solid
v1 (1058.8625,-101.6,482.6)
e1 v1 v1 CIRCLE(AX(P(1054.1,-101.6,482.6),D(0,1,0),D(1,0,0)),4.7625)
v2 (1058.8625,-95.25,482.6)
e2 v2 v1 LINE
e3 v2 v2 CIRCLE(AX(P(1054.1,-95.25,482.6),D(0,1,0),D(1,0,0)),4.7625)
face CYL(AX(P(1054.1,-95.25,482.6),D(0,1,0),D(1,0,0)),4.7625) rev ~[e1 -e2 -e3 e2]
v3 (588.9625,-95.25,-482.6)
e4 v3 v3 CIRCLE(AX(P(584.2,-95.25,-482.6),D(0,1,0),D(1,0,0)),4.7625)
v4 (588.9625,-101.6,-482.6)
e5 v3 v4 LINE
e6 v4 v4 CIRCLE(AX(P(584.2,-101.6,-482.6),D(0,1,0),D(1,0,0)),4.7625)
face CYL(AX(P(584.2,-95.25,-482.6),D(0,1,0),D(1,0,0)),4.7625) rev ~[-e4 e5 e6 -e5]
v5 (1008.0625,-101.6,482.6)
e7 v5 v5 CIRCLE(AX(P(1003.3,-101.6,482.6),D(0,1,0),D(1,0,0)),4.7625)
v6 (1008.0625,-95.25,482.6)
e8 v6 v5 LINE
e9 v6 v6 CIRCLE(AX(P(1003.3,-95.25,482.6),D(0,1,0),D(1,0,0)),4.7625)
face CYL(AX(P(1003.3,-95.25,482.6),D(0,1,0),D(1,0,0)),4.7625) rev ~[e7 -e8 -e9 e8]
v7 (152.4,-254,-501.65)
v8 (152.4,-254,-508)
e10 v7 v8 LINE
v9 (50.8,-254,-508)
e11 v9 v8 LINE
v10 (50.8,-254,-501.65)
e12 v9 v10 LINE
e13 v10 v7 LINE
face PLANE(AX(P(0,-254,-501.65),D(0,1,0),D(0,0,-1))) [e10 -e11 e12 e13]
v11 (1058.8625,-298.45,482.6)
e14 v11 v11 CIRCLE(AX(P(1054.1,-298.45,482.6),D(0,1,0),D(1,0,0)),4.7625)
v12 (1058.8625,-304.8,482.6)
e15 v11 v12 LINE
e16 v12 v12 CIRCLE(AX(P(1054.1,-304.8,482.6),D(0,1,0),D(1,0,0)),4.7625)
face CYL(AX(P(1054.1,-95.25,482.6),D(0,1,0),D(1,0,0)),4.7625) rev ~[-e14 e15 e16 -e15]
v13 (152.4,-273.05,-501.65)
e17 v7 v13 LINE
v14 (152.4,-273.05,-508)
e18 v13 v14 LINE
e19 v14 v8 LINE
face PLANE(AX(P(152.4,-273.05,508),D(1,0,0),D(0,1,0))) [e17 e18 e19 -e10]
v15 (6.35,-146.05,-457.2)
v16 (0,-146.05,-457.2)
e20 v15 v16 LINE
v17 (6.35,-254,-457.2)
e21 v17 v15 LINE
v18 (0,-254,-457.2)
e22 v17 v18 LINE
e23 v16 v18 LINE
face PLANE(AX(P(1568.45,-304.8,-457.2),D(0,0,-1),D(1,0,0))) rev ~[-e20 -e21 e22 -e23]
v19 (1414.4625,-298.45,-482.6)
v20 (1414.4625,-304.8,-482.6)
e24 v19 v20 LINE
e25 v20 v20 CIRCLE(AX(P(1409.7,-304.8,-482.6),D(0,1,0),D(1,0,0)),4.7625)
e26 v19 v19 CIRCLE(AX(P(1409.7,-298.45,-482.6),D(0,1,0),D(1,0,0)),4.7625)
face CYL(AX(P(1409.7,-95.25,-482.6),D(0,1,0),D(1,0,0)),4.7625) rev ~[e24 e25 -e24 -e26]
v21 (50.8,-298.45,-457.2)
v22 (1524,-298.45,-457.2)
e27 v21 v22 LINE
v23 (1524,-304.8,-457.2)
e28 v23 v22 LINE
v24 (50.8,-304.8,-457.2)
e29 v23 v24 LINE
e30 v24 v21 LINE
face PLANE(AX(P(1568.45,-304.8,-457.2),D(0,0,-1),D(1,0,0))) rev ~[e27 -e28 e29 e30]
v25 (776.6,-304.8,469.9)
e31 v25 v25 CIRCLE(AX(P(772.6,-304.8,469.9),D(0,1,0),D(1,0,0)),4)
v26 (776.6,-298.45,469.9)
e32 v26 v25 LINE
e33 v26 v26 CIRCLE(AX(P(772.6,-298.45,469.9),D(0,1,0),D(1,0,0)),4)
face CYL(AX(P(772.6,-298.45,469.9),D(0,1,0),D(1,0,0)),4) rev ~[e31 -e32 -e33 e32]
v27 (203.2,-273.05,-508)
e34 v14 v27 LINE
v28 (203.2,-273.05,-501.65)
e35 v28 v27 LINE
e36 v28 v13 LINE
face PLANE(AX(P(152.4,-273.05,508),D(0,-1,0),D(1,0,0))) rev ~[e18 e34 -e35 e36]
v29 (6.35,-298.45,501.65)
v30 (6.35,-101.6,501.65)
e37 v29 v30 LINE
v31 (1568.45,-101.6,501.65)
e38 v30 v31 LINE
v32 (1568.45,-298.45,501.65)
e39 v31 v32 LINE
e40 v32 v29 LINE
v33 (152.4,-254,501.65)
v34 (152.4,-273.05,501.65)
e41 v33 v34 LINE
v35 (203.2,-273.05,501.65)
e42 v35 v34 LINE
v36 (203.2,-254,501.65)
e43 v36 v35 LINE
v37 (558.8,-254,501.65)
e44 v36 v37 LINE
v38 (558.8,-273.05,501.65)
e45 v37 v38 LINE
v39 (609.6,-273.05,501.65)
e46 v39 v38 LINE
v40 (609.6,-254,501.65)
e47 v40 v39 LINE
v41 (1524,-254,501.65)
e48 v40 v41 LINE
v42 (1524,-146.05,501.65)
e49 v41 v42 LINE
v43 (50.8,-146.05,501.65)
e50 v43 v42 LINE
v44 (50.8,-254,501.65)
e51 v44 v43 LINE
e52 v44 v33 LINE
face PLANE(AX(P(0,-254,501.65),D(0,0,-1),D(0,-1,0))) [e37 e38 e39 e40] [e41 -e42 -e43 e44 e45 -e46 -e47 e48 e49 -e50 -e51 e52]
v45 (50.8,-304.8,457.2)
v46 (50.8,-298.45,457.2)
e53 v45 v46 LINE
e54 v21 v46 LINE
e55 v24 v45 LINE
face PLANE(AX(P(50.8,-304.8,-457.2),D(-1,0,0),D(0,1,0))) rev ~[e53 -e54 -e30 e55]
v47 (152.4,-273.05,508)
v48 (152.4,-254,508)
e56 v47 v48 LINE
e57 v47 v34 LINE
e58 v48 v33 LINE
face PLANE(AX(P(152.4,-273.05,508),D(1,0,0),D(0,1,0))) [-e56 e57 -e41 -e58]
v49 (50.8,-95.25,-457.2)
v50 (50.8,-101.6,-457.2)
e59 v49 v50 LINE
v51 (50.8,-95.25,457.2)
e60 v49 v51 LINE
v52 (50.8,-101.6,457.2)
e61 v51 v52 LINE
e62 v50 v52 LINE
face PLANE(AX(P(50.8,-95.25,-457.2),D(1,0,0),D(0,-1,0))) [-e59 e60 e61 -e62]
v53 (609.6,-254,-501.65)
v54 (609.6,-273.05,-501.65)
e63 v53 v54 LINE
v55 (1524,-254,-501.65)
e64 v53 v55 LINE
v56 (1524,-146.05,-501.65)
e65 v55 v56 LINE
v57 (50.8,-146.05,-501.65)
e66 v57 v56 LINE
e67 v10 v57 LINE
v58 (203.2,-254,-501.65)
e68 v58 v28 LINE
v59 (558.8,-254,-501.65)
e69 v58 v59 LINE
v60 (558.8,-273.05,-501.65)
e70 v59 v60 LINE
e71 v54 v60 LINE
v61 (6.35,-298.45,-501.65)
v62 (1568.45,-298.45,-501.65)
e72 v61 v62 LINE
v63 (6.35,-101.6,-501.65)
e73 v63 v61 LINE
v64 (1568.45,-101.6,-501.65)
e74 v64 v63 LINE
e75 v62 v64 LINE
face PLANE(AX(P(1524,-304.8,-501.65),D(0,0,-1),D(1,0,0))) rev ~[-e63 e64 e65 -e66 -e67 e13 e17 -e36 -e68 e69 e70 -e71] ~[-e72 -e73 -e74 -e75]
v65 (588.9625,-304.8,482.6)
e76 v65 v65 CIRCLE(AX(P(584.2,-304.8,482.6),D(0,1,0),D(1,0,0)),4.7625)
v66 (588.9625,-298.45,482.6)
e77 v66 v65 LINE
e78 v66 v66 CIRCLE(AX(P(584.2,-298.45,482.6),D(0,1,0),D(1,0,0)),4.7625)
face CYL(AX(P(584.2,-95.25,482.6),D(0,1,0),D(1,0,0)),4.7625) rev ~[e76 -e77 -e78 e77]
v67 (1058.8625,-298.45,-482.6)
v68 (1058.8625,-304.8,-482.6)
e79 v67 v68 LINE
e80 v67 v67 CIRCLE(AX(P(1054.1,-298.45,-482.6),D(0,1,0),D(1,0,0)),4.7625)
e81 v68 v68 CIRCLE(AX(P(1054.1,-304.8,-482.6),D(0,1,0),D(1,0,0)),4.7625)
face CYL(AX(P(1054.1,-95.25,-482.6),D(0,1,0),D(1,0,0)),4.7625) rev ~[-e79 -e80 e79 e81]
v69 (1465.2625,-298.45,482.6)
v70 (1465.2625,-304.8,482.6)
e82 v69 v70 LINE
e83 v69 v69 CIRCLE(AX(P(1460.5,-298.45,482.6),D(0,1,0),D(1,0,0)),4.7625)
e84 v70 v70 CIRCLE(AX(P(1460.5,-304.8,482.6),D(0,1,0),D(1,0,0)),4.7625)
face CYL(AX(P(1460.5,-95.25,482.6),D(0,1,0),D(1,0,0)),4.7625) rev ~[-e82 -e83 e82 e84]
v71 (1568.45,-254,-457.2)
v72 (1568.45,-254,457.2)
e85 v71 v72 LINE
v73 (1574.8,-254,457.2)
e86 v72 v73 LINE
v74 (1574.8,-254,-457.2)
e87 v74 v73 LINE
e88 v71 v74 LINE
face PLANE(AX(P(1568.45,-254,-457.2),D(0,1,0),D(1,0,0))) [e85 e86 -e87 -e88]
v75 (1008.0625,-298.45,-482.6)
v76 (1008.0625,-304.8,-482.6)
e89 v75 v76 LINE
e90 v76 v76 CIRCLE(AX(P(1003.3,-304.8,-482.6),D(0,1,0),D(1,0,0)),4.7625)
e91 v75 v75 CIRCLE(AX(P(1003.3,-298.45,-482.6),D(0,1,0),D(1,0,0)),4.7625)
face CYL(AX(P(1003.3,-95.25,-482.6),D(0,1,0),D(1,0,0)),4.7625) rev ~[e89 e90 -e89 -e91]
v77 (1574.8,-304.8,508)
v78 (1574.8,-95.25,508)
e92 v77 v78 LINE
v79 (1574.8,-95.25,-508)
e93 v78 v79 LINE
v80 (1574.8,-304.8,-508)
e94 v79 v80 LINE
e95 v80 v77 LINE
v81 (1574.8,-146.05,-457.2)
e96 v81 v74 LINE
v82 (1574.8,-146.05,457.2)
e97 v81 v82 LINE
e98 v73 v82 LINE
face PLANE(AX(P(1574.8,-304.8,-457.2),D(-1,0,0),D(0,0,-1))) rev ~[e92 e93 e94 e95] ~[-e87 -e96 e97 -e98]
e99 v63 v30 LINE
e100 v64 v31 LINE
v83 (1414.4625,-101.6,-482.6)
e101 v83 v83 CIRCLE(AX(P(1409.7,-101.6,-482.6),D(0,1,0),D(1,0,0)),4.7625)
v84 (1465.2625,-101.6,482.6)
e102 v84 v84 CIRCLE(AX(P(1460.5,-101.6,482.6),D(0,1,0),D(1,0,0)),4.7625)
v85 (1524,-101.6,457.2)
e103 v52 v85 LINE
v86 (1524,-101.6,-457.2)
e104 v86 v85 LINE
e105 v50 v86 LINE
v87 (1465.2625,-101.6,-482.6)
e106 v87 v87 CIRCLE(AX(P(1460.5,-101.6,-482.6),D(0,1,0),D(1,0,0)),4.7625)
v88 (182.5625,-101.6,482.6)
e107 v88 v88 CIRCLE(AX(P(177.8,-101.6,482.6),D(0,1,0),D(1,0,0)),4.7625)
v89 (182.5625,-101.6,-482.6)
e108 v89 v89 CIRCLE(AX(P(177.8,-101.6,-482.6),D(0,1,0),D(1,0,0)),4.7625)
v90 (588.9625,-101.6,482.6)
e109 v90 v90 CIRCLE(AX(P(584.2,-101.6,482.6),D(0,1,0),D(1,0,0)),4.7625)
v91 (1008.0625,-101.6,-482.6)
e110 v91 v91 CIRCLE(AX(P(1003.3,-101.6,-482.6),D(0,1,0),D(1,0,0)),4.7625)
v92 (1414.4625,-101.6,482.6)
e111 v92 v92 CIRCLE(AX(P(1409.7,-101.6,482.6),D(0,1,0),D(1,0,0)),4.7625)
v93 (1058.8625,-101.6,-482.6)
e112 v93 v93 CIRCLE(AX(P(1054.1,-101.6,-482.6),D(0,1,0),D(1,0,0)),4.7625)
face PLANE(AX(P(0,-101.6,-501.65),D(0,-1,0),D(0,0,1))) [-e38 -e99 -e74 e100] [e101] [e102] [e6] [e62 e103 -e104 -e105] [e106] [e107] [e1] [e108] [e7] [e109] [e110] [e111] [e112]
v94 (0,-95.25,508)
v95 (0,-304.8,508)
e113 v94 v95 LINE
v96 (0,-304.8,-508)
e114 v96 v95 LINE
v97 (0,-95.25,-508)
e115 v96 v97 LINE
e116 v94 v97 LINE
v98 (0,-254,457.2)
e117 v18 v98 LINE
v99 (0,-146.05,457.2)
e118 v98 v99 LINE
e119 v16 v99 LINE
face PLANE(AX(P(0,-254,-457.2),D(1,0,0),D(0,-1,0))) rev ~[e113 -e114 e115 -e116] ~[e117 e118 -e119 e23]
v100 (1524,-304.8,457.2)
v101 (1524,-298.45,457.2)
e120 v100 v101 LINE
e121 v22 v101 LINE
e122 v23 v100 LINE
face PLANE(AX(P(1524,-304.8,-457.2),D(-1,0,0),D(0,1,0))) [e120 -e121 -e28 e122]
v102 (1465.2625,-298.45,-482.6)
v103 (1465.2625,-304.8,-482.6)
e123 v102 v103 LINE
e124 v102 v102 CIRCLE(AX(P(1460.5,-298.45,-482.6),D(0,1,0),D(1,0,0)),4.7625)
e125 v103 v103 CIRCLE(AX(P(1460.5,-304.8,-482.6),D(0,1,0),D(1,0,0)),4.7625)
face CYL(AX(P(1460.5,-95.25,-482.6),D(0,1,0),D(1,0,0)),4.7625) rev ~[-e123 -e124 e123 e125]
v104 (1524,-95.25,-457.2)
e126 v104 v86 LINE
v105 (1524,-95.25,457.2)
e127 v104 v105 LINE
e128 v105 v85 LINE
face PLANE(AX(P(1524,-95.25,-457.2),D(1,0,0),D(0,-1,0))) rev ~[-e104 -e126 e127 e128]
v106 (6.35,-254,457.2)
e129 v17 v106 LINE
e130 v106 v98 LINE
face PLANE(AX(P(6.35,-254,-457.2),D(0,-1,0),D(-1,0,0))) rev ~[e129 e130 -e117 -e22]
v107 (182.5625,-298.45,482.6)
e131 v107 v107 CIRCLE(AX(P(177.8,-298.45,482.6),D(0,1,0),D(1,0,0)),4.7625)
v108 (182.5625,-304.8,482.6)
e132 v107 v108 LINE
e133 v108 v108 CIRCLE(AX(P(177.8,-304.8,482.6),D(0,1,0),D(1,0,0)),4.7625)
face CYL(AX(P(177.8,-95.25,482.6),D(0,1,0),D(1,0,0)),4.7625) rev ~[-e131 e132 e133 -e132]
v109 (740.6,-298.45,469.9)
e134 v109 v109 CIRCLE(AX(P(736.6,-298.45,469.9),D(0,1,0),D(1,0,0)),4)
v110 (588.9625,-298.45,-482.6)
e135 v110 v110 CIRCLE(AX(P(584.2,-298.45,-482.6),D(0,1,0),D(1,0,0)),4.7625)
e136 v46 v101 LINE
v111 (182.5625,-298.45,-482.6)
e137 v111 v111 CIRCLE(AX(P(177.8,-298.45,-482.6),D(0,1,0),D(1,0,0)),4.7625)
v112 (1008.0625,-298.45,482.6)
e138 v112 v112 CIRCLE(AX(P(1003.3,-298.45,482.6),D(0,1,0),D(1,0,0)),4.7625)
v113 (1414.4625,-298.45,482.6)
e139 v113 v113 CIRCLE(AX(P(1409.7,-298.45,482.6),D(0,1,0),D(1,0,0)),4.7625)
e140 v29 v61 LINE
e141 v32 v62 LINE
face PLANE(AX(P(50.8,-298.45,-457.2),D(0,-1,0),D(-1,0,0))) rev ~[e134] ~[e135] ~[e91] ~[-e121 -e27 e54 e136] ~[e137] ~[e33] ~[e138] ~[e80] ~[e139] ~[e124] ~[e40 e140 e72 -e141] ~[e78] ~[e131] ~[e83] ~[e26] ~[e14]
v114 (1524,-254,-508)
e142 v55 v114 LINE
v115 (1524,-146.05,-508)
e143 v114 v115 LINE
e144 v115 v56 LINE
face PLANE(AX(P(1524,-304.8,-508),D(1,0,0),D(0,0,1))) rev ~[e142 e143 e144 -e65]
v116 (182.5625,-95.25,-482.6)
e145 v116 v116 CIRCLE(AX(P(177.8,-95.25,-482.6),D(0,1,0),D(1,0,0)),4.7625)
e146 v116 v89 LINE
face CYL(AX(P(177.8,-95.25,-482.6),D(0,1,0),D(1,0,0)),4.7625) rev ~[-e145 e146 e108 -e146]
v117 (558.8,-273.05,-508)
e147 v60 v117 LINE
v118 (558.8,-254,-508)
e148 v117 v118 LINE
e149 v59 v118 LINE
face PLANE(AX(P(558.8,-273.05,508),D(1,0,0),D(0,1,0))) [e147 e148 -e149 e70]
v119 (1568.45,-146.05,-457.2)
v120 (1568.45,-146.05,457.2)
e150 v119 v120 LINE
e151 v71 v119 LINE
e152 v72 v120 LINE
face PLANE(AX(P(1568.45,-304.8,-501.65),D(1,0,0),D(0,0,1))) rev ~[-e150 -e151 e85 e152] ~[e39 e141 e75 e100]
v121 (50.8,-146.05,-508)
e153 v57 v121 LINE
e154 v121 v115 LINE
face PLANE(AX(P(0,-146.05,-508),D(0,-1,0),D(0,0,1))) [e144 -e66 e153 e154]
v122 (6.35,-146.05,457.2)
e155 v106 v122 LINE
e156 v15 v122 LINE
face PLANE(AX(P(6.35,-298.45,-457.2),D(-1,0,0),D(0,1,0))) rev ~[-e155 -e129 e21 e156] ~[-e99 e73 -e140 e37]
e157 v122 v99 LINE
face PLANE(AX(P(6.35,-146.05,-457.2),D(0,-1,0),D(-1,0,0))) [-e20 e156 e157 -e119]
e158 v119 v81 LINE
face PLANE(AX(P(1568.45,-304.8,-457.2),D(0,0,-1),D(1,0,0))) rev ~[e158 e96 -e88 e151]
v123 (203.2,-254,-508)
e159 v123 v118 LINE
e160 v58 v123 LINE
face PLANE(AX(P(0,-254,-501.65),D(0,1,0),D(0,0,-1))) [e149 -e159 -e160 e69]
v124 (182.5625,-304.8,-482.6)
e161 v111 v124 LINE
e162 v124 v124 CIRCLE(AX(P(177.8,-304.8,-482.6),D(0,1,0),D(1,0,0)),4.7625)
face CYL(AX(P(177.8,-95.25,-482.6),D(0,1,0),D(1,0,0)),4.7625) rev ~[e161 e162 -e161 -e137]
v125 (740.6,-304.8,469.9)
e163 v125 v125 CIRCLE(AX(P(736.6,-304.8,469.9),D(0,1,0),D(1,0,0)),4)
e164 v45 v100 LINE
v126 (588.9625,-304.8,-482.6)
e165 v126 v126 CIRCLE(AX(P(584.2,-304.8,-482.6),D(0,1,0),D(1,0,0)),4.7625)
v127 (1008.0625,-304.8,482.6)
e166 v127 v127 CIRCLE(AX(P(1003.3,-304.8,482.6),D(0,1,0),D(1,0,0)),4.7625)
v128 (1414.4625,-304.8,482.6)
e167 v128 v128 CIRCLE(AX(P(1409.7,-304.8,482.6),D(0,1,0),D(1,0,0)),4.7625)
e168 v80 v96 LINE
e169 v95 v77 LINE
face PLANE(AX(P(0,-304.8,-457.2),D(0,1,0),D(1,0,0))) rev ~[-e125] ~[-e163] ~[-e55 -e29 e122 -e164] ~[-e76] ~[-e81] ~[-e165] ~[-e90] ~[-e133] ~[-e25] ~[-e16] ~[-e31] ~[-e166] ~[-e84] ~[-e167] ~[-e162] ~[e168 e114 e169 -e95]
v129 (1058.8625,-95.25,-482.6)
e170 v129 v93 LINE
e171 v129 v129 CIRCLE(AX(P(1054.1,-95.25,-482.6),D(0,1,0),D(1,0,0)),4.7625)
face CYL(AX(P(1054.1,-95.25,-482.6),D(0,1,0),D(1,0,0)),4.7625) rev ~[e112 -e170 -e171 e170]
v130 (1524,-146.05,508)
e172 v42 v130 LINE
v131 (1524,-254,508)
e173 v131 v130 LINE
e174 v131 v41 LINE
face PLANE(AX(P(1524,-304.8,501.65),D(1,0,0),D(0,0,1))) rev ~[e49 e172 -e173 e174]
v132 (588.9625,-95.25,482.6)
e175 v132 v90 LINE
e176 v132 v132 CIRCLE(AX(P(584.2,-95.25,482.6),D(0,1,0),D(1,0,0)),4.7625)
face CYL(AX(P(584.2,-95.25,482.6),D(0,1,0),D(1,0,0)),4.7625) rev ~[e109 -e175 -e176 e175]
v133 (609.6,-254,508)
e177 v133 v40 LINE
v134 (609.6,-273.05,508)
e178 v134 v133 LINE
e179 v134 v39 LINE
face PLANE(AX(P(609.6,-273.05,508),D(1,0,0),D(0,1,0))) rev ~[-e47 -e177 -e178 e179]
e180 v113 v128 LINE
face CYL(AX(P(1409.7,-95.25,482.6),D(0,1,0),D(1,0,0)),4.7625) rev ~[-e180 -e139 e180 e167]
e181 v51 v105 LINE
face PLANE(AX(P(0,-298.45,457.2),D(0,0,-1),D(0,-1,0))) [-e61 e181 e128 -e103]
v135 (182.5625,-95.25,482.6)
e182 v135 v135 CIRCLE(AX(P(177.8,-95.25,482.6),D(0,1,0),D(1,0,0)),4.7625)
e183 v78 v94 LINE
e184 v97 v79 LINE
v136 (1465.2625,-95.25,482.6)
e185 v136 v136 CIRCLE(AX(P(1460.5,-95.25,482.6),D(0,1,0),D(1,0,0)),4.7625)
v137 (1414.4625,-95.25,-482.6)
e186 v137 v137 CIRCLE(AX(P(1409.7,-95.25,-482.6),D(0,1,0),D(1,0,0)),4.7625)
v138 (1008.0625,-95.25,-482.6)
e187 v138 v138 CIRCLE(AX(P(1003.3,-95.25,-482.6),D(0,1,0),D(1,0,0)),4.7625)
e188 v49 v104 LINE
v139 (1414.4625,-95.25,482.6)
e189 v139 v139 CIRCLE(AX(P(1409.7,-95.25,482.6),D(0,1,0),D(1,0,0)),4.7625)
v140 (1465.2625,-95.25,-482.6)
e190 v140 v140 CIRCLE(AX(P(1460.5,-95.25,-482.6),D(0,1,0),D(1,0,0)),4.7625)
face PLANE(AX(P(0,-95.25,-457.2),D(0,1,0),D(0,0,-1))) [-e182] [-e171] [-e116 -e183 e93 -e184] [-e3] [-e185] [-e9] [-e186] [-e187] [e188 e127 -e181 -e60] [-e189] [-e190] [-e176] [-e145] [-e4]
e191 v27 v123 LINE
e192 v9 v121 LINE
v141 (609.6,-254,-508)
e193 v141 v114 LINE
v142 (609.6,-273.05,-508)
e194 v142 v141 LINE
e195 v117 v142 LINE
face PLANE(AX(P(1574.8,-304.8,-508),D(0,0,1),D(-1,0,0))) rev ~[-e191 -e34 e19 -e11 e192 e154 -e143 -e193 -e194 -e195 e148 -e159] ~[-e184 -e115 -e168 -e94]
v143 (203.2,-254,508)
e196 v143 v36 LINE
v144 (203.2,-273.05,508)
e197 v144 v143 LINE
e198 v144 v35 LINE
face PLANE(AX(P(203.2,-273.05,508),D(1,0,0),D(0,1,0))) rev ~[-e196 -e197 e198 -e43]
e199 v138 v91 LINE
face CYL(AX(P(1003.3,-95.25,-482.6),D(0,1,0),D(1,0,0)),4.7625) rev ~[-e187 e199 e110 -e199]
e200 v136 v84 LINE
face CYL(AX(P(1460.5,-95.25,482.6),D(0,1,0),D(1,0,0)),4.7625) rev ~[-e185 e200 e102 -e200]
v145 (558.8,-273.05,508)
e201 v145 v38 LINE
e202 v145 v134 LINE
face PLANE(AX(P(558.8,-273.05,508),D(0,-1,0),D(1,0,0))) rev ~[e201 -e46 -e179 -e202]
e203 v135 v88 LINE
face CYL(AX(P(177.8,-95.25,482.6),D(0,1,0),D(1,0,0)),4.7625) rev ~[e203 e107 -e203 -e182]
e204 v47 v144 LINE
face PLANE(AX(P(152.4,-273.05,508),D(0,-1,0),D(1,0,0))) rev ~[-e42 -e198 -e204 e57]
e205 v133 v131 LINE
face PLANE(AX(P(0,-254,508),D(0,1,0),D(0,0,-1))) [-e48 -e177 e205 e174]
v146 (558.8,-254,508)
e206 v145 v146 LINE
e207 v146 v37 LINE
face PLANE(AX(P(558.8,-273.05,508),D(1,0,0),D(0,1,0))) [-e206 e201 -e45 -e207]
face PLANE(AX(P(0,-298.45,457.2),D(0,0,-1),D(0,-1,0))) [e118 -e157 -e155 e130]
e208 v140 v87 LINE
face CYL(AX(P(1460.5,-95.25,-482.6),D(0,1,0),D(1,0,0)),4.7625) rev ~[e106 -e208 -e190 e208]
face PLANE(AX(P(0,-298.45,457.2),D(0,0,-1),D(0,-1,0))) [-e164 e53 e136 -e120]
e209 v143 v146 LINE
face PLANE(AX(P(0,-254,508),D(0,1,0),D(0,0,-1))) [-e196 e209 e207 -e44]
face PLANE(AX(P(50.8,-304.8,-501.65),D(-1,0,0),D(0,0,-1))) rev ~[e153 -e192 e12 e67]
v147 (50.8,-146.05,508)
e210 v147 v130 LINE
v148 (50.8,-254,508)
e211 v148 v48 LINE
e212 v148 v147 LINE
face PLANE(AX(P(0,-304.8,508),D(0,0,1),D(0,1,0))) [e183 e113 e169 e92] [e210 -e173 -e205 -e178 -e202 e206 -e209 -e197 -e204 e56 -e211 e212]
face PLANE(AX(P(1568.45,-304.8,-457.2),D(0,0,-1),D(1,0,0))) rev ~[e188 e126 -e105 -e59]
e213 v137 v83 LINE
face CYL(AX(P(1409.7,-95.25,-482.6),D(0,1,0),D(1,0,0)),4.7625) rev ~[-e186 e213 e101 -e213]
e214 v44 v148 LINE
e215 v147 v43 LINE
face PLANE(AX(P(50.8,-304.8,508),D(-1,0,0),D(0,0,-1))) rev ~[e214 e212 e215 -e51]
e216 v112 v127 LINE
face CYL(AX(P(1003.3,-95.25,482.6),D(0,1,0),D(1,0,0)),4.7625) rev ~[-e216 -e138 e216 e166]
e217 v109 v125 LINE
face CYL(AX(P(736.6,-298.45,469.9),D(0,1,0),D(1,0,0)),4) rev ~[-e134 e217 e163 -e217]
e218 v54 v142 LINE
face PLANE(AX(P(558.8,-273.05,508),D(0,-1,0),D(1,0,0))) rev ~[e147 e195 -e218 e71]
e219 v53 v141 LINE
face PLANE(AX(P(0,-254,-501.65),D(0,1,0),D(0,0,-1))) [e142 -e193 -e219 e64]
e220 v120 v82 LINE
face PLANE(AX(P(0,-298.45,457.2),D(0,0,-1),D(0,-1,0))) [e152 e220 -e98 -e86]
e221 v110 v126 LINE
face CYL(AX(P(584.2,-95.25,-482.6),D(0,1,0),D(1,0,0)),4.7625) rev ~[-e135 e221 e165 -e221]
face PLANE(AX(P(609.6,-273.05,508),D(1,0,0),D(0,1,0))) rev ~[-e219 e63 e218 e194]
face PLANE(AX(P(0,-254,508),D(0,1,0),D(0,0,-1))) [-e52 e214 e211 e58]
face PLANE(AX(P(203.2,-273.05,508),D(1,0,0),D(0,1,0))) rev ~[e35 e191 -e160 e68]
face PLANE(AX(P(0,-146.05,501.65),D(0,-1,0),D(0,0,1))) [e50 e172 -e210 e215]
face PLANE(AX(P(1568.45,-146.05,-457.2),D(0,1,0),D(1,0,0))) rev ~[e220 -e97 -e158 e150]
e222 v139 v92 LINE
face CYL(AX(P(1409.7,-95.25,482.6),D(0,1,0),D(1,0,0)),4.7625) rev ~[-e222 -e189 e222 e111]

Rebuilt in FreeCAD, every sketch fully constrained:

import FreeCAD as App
import Part
import Sketcher
from FreeCAD import Vector
Q = App.Units.Quantity

doc = App.newDocument("Part")
body = doc.addObject("PartDesign::Body", "Body")

sketch1 = doc.addObject("Sketcher::SketchObject", "Sketch")
body.addObject(sketch1)
sketch1.AttachmentSupport = (doc.YZ_Plane, [""])
sketch1.MapMode = "FlatFace"
sketch1.addGeometry(Part.LineSegment(Vector(-254, 508, 0), Vector(-305, 508, 0)), False)
sketch1.addGeometry(Part.LineSegment(Vector(-305, 508, 0), Vector(-305, 457, 0)), False)
sketch1.addGeometry(Part.LineSegment(Vector(-305, 457, 0), Vector(-298, 457, 0)), False)
sketch1.addGeometry(Part.LineSegment(Vector(-298, 457, 0), Vector(-298, 502, 0)), False)
sketch1.addGeometry(Part.LineSegment(Vector(-298, 502, 0), Vector(-254, 502, 0)), False)
sketch1.addGeometry(Part.LineSegment(Vector(-254, 502, 0), Vector(-254, 508, 0)), False)
sketch1.addConstraint(Sketcher.Constraint("Coincident", 0, 2, 1, 1))
sketch1.addConstraint(Sketcher.Constraint("Coincident", 1, 2, 2, 1))
sketch1.addConstraint(Sketcher.Constraint("Coincident", 2, 2, 3, 1))
sketch1.addConstraint(Sketcher.Constraint("Coincident", 3, 2, 4, 1))
sketch1.addConstraint(Sketcher.Constraint("Coincident", 4, 2, 5, 1))
sketch1.addConstraint(Sketcher.Constraint("Coincident", 5, 2, 0, 1))
sketch1.addConstraint(Sketcher.Constraint("Horizontal", 0))
sketch1.addConstraint(Sketcher.Constraint("Vertical", 1))
sketch1.addConstraint(Sketcher.Constraint("Horizontal", 2))
sketch1.addConstraint(Sketcher.Constraint("Vertical", 3))
sketch1.addConstraint(Sketcher.Constraint("Horizontal", 4))
sketch1.addConstraint(Sketcher.Constraint("Vertical", 5))
sketch1.addConstraint(Sketcher.Constraint("Equal", 0, 1))
sketch1.addConstraint(Sketcher.Constraint("Equal", 4, 3))
sketch1.addConstraint(Sketcher.Constraint("DistanceX", 0, 2, 0, 1, Q("2 in")))
sketch1.addConstraint(Sketcher.Constraint("DistanceX", 0, 2, -1, 1, Q("12 in")))
sketch1.addConstraint(Sketcher.Constraint("DistanceY", -1, 1, 0, 2, Q("20 in")))
sketch1.addConstraint(Sketcher.Constraint("DistanceX", 2, 1, 2, 2, Q("0.25 in")))
pad1 = doc.addObject("PartDesign::Pad", "Pad")
body.addObject(pad1)
pad1.Profile = sketch1
pad1.Length = Q("62 in")
body2 = doc.addObject("PartDesign::Body", "Body001")

sketch2 = doc.addObject("Sketcher::SketchObject", "Sketch001")
body2.addObject(sketch2)
sketch2.AttachmentSupport = (doc.getObject("YZ_Plane001"), [""])
sketch2.MapMode = "FlatFace"
sketch2.addGeometry(Part.LineSegment(Vector(-254, -508, 0), Vector(-254, -502, 0)), False)
sketch2.addGeometry(Part.LineSegment(Vector(-254, -502, 0), Vector(-298, -502, 0)), False)
sketch2.addGeometry(Part.LineSegment(Vector(-298, -502, 0), Vector(-298, -457, 0)), False)
sketch2.addGeometry(Part.LineSegment(Vector(-298, -457, 0), Vector(-305, -457, 0)), False)
sketch2.addGeometry(Part.LineSegment(Vector(-305, -457, 0), Vector(-305, -508, 0)), False)
sketch2.addGeometry(Part.LineSegment(Vector(-305, -508, 0), Vector(-254, -508, 0)), False)
sketch2.addConstraint(Sketcher.Constraint("Coincident", 0, 2, 1, 1))
sketch2.addConstraint(Sketcher.Constraint("Coincident", 1, 2, 2, 1))
sketch2.addConstraint(Sketcher.Constraint("Coincident", 2, 2, 3, 1))
sketch2.addConstraint(Sketcher.Constraint("Coincident", 3, 2, 4, 1))
sketch2.addConstraint(Sketcher.Constraint("Coincident", 4, 2, 5, 1))
sketch2.addConstraint(Sketcher.Constraint("Coincident", 5, 2, 0, 1))
sketch2.addConstraint(Sketcher.Constraint("Vertical", 0))
sketch2.addConstraint(Sketcher.Constraint("Horizontal", 1))
sketch2.addConstraint(Sketcher.Constraint("Vertical", 2))
sketch2.addConstraint(Sketcher.Constraint("Horizontal", 3))
sketch2.addConstraint(Sketcher.Constraint("Vertical", 4))
sketch2.addConstraint(Sketcher.Constraint("Horizontal", 5))
sketch2.addConstraint(Sketcher.Constraint("Equal", 3, 0))
sketch2.addConstraint(Sketcher.Constraint("Equal", 1, 2))
sketch2.addConstraint(Sketcher.Constraint("DistanceX", 5, 1, 5, 2, Q("2 in")))
sketch2.addConstraint(Sketcher.Constraint("DistanceX", 0, 2, -1, 1, Q("10 in")))
sketch2.addConstraint(Sketcher.Constraint("DistanceY", 2, 2, -1, 1, Q("18 in")))
sketch2.addConstraint(Sketcher.Constraint("DistanceX", 1, 2, 1, 1, Q("1.75 in")))
pad2 = doc.addObject("PartDesign::Pad", "Pad001")
body2.addObject(pad2)
pad2.Profile = sketch2
pad2.Length = Q("62 in")
body3 = doc.addObject("PartDesign::Body", "Body002")

sketch3 = doc.addObject("Sketcher::SketchObject", "Sketch002")
body3.addObject(sketch3)
sketch3.AttachmentSupport = (doc.getObject("YZ_Plane002"), [""])
sketch3.MapMode = "FlatFace"
sketch3.addGeometry(Part.LineSegment(Vector(-146, -508, 0), Vector(-95, -508, 0)), False)
sketch3.addGeometry(Part.LineSegment(Vector(-95, -508, 0), Vector(-95, -457, 0)), False)
sketch3.addGeometry(Part.LineSegment(Vector(-95, -457, 0), Vector(-102, -457, 0)), False)
sketch3.addGeometry(Part.LineSegment(Vector(-102, -457, 0), Vector(-102, -502, 0)), False)
sketch3.addGeometry(Part.LineSegment(Vector(-102, -502, 0), Vector(-146, -502, 0)), False)
sketch3.addGeometry(Part.LineSegment(Vector(-146, -502, 0), Vector(-146, -508, 0)), False)
sketch3.addConstraint(Sketcher.Constraint("Coincident", 0, 2, 1, 1))
sketch3.addConstraint(Sketcher.Constraint("Coincident", 1, 2, 2, 1))
sketch3.addConstraint(Sketcher.Constraint("Coincident", 2, 2, 3, 1))
sketch3.addConstraint(Sketcher.Constraint("Coincident", 3, 2, 4, 1))
sketch3.addConstraint(Sketcher.Constraint("Coincident", 4, 2, 5, 1))
sketch3.addConstraint(Sketcher.Constraint("Coincident", 5, 2, 0, 1))
sketch3.addConstraint(Sketcher.Constraint("Horizontal", 0))
sketch3.addConstraint(Sketcher.Constraint("Vertical", 1))
sketch3.addConstraint(Sketcher.Constraint("Horizontal", 2))
sketch3.addConstraint(Sketcher.Constraint("Vertical", 3))
sketch3.addConstraint(Sketcher.Constraint("Horizontal", 4))
sketch3.addConstraint(Sketcher.Constraint("Vertical", 5))
sketch3.addConstraint(Sketcher.Constraint("Equal", 0, 1))
sketch3.addConstraint(Sketcher.Constraint("Equal", 4, 3))
sketch3.addConstraint(Sketcher.Constraint("DistanceX", 0, 1, 0, 2, Q("2 in")))
sketch3.addConstraint(Sketcher.Constraint("DistanceY", 0, 2, -1, 1, Q("20 in")))
sketch3.addConstraint(Sketcher.Constraint("DistanceX", 2, 2, -1, 1, Q("4 in")))
sketch3.addConstraint(Sketcher.Constraint("DistanceX", 2, 2, 2, 1, Q("0.25 in")))
pad3 = doc.addObject("PartDesign::Pad", "Pad002")
body3.addObject(pad3)
pad3.Profile = sketch3
pad3.Length = Q("62 in")
body4 = doc.addObject("PartDesign::Body", "Body003")

sketch4 = doc.addObject("Sketcher::SketchObject", "Sketch003")
body4.addObject(sketch4)
sketch4.AttachmentSupport = (doc.getObject("YZ_Plane003"), [""])
sketch4.MapMode = "FlatFace"
sketch4.addGeometry(Part.LineSegment(Vector(-146, 508, 0), Vector(-146, 502, 0)), False)
sketch4.addGeometry(Part.LineSegment(Vector(-146, 502, 0), Vector(-102, 502, 0)), False)
sketch4.addGeometry(Part.LineSegment(Vector(-102, 502, 0), Vector(-102, 457, 0)), False)
sketch4.addGeometry(Part.LineSegment(Vector(-102, 457, 0), Vector(-95, 457, 0)), False)
sketch4.addGeometry(Part.LineSegment(Vector(-95, 457, 0), Vector(-95, 508, 0)), False)
sketch4.addGeometry(Part.LineSegment(Vector(-95, 508, 0), Vector(-146, 508, 0)), False)
sketch4.addConstraint(Sketcher.Constraint("Coincident", 0, 2, 1, 1))
sketch4.addConstraint(Sketcher.Constraint("Coincident", 1, 2, 2, 1))
sketch4.addConstraint(Sketcher.Constraint("Coincident", 2, 2, 3, 1))
sketch4.addConstraint(Sketcher.Constraint("Coincident", 3, 2, 4, 1))
sketch4.addConstraint(Sketcher.Constraint("Coincident", 4, 2, 5, 1))
sketch4.addConstraint(Sketcher.Constraint("Coincident", 5, 2, 0, 1))
sketch4.addConstraint(Sketcher.Constraint("Vertical", 0))
sketch4.addConstraint(Sketcher.Constraint("Horizontal", 1))
sketch4.addConstraint(Sketcher.Constraint("Vertical", 2))
sketch4.addConstraint(Sketcher.Constraint("Horizontal", 3))
sketch4.addConstraint(Sketcher.Constraint("Vertical", 4))
sketch4.addConstraint(Sketcher.Constraint("Horizontal", 5))
sketch4.addConstraint(Sketcher.Constraint("Equal", 3, 0))
sketch4.addConstraint(Sketcher.Constraint("Equal", 1, 2))
sketch4.addConstraint(Sketcher.Constraint("DistanceX", 5, 2, 5, 1, Q("2 in")))
sketch4.addConstraint(Sketcher.Constraint("DistanceX", 1, 2, -1, 1, Q("4 in")))
sketch4.addConstraint(Sketcher.Constraint("DistanceY", -1, 1, 2, 2, Q("18 in")))
sketch4.addConstraint(Sketcher.Constraint("DistanceX", 1, 1, 1, 2, Q("1.75 in")))
pad4 = doc.addObject("PartDesign::Pad", "Pad003")
body4.addObject(pad4)
pad4.Profile = sketch4
pad4.Length = Q("62 in")
body.AllowCompound = True
doc.recompute()

boolean = doc.addObject("PartDesign::Boolean", "Boolean")
body.addObject(boolean)
boolean.Type = "Fuse"
boolean.addObjects([body2])
doc.recompute()

boolean2 = doc.addObject("PartDesign::Boolean", "Boolean001")
body.addObject(boolean2)
boolean2.Type = "Fuse"
boolean2.addObjects([body3])
doc.recompute()

boolean3 = doc.addObject("PartDesign::Boolean", "Boolean002")
body.addObject(boolean3)
boolean3.Type = "Fuse"
boolean3.addObjects([body4])

sketch5 = doc.addObject("Sketcher::SketchObject", "Sketch004")
body.addObject(sketch5)
sketch5.AttachmentSupport = (doc.XZ_Plane, [""])
sketch5.MapMode = "FlatFace"
sketch5.AttachmentOffset = App.Placement(Vector(0, 0, 12 * 25.4), App.Rotation())
sketch5.addGeometry(Part.LineSegment(Vector(1524, -508, 0), Vector(1575, -508, 0)), False)
sketch5.addGeometry(Part.LineSegment(Vector(1575, -508, 0), Vector(1575, -457, 0)), False)
sketch5.addGeometry(Part.LineSegment(Vector(1575, -457, 0), Vector(1568, -457, 0)), False)
sketch5.addGeometry(Part.LineSegment(Vector(1568, -457, 0), Vector(1568, -502, 0)), False)
sketch5.addGeometry(Part.LineSegment(Vector(1568, -502, 0), Vector(1524, -502, 0)), False)
sketch5.addGeometry(Part.LineSegment(Vector(1524, -502, 0), Vector(1524, -508, 0)), False)
sketch5.addGeometry(Part.LineSegment(Vector(1524, 508, 0), Vector(1524, 502, 0)), False)
sketch5.addGeometry(Part.LineSegment(Vector(1524, 502, 0), Vector(1568, 502, 0)), False)
sketch5.addGeometry(Part.LineSegment(Vector(1568, 502, 0), Vector(1568, 457, 0)), False)
sketch5.addGeometry(Part.LineSegment(Vector(1568, 457, 0), Vector(1575, 457, 0)), False)
sketch5.addGeometry(Part.LineSegment(Vector(1575, 457, 0), Vector(1575, 508, 0)), False)
sketch5.addGeometry(Part.LineSegment(Vector(1575, 508, 0), Vector(1524, 508, 0)), False)
sketch5.addGeometry(Part.LineSegment(Vector(51, 508, 0), Vector(0, 508, 0)), False)
sketch5.addGeometry(Part.LineSegment(Vector(0, 508, 0), Vector(0, 457, 0)), False)
sketch5.addGeometry(Part.LineSegment(Vector(0, 457, 0), Vector(6, 457, 0)), False)
sketch5.addGeometry(Part.LineSegment(Vector(6, 457, 0), Vector(6, 502, 0)), False)
sketch5.addGeometry(Part.LineSegment(Vector(6, 502, 0), Vector(51, 502, 0)), False)
sketch5.addGeometry(Part.LineSegment(Vector(51, 502, 0), Vector(51, 508, 0)), False)
sketch5.addGeometry(Part.LineSegment(Vector(51, -508, 0), Vector(51, -502, 0)), False)
sketch5.addGeometry(Part.LineSegment(Vector(51, -502, 0), Vector(6, -502, 0)), False)
sketch5.addGeometry(Part.LineSegment(Vector(6, -502, 0), Vector(6, -457, 0)), False)
sketch5.addGeometry(Part.LineSegment(Vector(6, -457, 0), Vector(0, -457, 0)), False)
sketch5.addGeometry(Part.LineSegment(Vector(0, -457, 0), Vector(0, -508, 0)), False)
sketch5.addGeometry(Part.LineSegment(Vector(0, -508, 0), Vector(51, -508, 0)), False)
sketch5.addConstraint(Sketcher.Constraint("Coincident", 0, 2, 1, 1))
sketch5.addConstraint(Sketcher.Constraint("Coincident", 1, 2, 2, 1))
sketch5.addConstraint(Sketcher.Constraint("Coincident", 2, 2, 3, 1))
sketch5.addConstraint(Sketcher.Constraint("Coincident", 3, 2, 4, 1))
sketch5.addConstraint(Sketcher.Constraint("Coincident", 4, 2, 5, 1))
sketch5.addConstraint(Sketcher.Constraint("Coincident", 5, 2, 0, 1))
sketch5.addConstraint(Sketcher.Constraint("Coincident", 6, 2, 7, 1))
sketch5.addConstraint(Sketcher.Constraint("Coincident", 7, 2, 8, 1))
sketch5.addConstraint(Sketcher.Constraint("Coincident", 8, 2, 9, 1))
sketch5.addConstraint(Sketcher.Constraint("Coincident", 9, 2, 10, 1))
sketch5.addConstraint(Sketcher.Constraint("Coincident", 10, 2, 11, 1))
sketch5.addConstraint(Sketcher.Constraint("Coincident", 11, 2, 6, 1))
sketch5.addConstraint(Sketcher.Constraint("Coincident", 12, 2, 13, 1))
sketch5.addConstraint(Sketcher.Constraint("Coincident", 13, 2, 14, 1))
sketch5.addConstraint(Sketcher.Constraint("Coincident", 14, 2, 15, 1))
sketch5.addConstraint(Sketcher.Constraint("Coincident", 15, 2, 16, 1))
sketch5.addConstraint(Sketcher.Constraint("Coincident", 16, 2, 17, 1))
sketch5.addConstraint(Sketcher.Constraint("Coincident", 17, 2, 12, 1))
sketch5.addConstraint(Sketcher.Constraint("Coincident", 18, 2, 19, 1))
sketch5.addConstraint(Sketcher.Constraint("Coincident", 19, 2, 20, 1))
sketch5.addConstraint(Sketcher.Constraint("Coincident", 20, 2, 21, 1))
sketch5.addConstraint(Sketcher.Constraint("Coincident", 21, 2, 22, 1))
sketch5.addConstraint(Sketcher.Constraint("Coincident", 22, 2, 23, 1))
sketch5.addConstraint(Sketcher.Constraint("Coincident", 23, 2, 18, 1))
sketch5.addConstraint(Sketcher.Constraint("Horizontal", 0))
sketch5.addConstraint(Sketcher.Constraint("Vertical", 1))
sketch5.addConstraint(Sketcher.Constraint("Horizontal", 2))
sketch5.addConstraint(Sketcher.Constraint("Vertical", 3))
sketch5.addConstraint(Sketcher.Constraint("Horizontal", 4))
sketch5.addConstraint(Sketcher.Constraint("Vertical", 5))
sketch5.addConstraint(Sketcher.Constraint("Vertical", 6))
sketch5.addConstraint(Sketcher.Constraint("Horizontal", 7))
sketch5.addConstraint(Sketcher.Constraint("Vertical", 8))
sketch5.addConstraint(Sketcher.Constraint("Horizontal", 9))
sketch5.addConstraint(Sketcher.Constraint("Vertical", 10))
sketch5.addConstraint(Sketcher.Constraint("Horizontal", 11))
sketch5.addConstraint(Sketcher.Constraint("Horizontal", 12))
sketch5.addConstraint(Sketcher.Constraint("Vertical", 13))
sketch5.addConstraint(Sketcher.Constraint("Horizontal", 14))
sketch5.addConstraint(Sketcher.Constraint("Vertical", 15))
sketch5.addConstraint(Sketcher.Constraint("Horizontal", 16))
sketch5.addConstraint(Sketcher.Constraint("Vertical", 17))
sketch5.addConstraint(Sketcher.Constraint("Vertical", 18))
sketch5.addConstraint(Sketcher.Constraint("Horizontal", 19))
sketch5.addConstraint(Sketcher.Constraint("Vertical", 20))
sketch5.addConstraint(Sketcher.Constraint("Horizontal", 21))
sketch5.addConstraint(Sketcher.Constraint("Vertical", 22))
sketch5.addConstraint(Sketcher.Constraint("Horizontal", 23))
sketch5.addConstraint(Sketcher.Constraint("Symmetric", 13, 2, 21, 2, -1, 1))
sketch5.addConstraint(Sketcher.Constraint("Symmetric", 4, 2, 6, 2, -1))
sketch5.addConstraint(Sketcher.Constraint("Symmetric", 2, 2, 8, 2, -1))
sketch5.addConstraint(Sketcher.Constraint("Symmetric", 0, 2, 10, 2, -1))
sketch5.addConstraint(Sketcher.Constraint("Symmetric", 16, 2, 18, 2, -1))
sketch5.addConstraint(Sketcher.Constraint("Symmetric", 12, 2, 22, 2, -1))
sketch5.addConstraint(Sketcher.Constraint("Horizontal", 11, 2, 12, 2))
sketch5.addConstraint(Sketcher.Constraint("Horizontal", 9, 2, 13, 2))
sketch5.addConstraint(Sketcher.Constraint("Horizontal", 7, 2, 15, 2))
sketch5.addConstraint(Sketcher.Constraint("Vertical", 15, 2, 19, 2))
sketch5.addConstraint(Sketcher.Constraint("Equal", 11, 12))
sketch5.addConstraint(Sketcher.Constraint("Equal", 9, 14))
sketch5.addConstraint(Sketcher.Constraint("Equal", 23, 1))
sketch5.addConstraint(Sketcher.Constraint("Equal", 19, 3))
sketch5.addConstraint(Sketcher.Constraint("DistanceX", 0, 1, 0, 2, Q("2 in")))
sketch5.addConstraint(Sketcher.Constraint("DistanceX", -1, 1, 0, 2, Q("62 in")))
sketch5.addConstraint(Sketcher.Constraint("DistanceY", 0, 2, -1, 1, Q("20 in")))
sketch5.addConstraint(Sketcher.Constraint("DistanceX", 2, 2, 2, 1, Q("0.25 in")))
pad5 = doc.addObject("PartDesign::Pad", "Pad004")
body.addObject(pad5)
pad5.Profile = sketch5
pad5.Length = Q("8.25 in")
pad5.Reversed = True

sketch6 = doc.addObject("Sketcher::SketchObject", "Sketch005")
body.addObject(sketch6)
sketch6.AttachmentSupport = (doc.XY_Plane, [""])
sketch6.MapMode = "FlatFace"
sketch6.AttachmentOffset = App.Placement(Vector(0, 0, -18 * 25.4), App.Rotation())
sketch6.addGeometry(Part.LineSegment(Vector(0, -254, 0), Vector(0, -305, 0)), False)
sketch6.addGeometry(Part.LineSegment(Vector(0, -305, 0), Vector(51, -305, 0)), False)
sketch6.addGeometry(Part.LineSegment(Vector(51, -305, 0), Vector(51, -298, 0)), False)
sketch6.addGeometry(Part.LineSegment(Vector(51, -298, 0), Vector(6, -298, 0)), False)
sketch6.addGeometry(Part.LineSegment(Vector(6, -298, 0), Vector(6, -254, 0)), False)
sketch6.addGeometry(Part.LineSegment(Vector(6, -254, 0), Vector(0, -254, 0)), False)
sketch6.addGeometry(Part.LineSegment(Vector(1575, -254, 0), Vector(1568, -254, 0)), False)
sketch6.addGeometry(Part.LineSegment(Vector(1568, -254, 0), Vector(1568, -298, 0)), False)
sketch6.addGeometry(Part.LineSegment(Vector(1568, -298, 0), Vector(1524, -298, 0)), False)
sketch6.addGeometry(Part.LineSegment(Vector(1524, -298, 0), Vector(1524, -305, 0)), False)
sketch6.addGeometry(Part.LineSegment(Vector(1524, -305, 0), Vector(1575, -305, 0)), False)
sketch6.addGeometry(Part.LineSegment(Vector(1575, -305, 0), Vector(1575, -254, 0)), False)
sketch6.addGeometry(Part.LineSegment(Vector(1575, -146, 0), Vector(1575, -95, 0)), False)
sketch6.addGeometry(Part.LineSegment(Vector(1575, -95, 0), Vector(1524, -95, 0)), False)
sketch6.addGeometry(Part.LineSegment(Vector(1524, -95, 0), Vector(1524, -102, 0)), False)
sketch6.addGeometry(Part.LineSegment(Vector(1524, -102, 0), Vector(1568, -102, 0)), False)
sketch6.addGeometry(Part.LineSegment(Vector(1568, -102, 0), Vector(1568, -146, 0)), False)
sketch6.addGeometry(Part.LineSegment(Vector(1568, -146, 0), Vector(1575, -146, 0)), False)
sketch6.addGeometry(Part.LineSegment(Vector(0, -146, 0), Vector(6, -146, 0)), False)
sketch6.addGeometry(Part.LineSegment(Vector(6, -146, 0), Vector(6, -102, 0)), False)
sketch6.addGeometry(Part.LineSegment(Vector(6, -102, 0), Vector(51, -102, 0)), False)
sketch6.addGeometry(Part.LineSegment(Vector(51, -102, 0), Vector(51, -95, 0)), False)
sketch6.addGeometry(Part.LineSegment(Vector(51, -95, 0), Vector(0, -95, 0)), False)
sketch6.addGeometry(Part.LineSegment(Vector(0, -95, 0), Vector(0, -146, 0)), False)
sketch6.addConstraint(Sketcher.Constraint("Coincident", 0, 2, 1, 1))
sketch6.addConstraint(Sketcher.Constraint("Coincident", 1, 2, 2, 1))
sketch6.addConstraint(Sketcher.Constraint("Coincident", 2, 2, 3, 1))
sketch6.addConstraint(Sketcher.Constraint("Coincident", 3, 2, 4, 1))
sketch6.addConstraint(Sketcher.Constraint("Coincident", 4, 2, 5, 1))
sketch6.addConstraint(Sketcher.Constraint("Coincident", 5, 2, 0, 1))
sketch6.addConstraint(Sketcher.Constraint("Coincident", 6, 2, 7, 1))
sketch6.addConstraint(Sketcher.Constraint("Coincident", 7, 2, 8, 1))
sketch6.addConstraint(Sketcher.Constraint("Coincident", 8, 2, 9, 1))
sketch6.addConstraint(Sketcher.Constraint("Coincident", 9, 2, 10, 1))
sketch6.addConstraint(Sketcher.Constraint("Coincident", 10, 2, 11, 1))
sketch6.addConstraint(Sketcher.Constraint("Coincident", 11, 2, 6, 1))
sketch6.addConstraint(Sketcher.Constraint("Coincident", 12, 2, 13, 1))
sketch6.addConstraint(Sketcher.Constraint("Coincident", 13, 2, 14, 1))
sketch6.addConstraint(Sketcher.Constraint("Coincident", 14, 2, 15, 1))
sketch6.addConstraint(Sketcher.Constraint("Coincident", 15, 2, 16, 1))
sketch6.addConstraint(Sketcher.Constraint("Coincident", 16, 2, 17, 1))
sketch6.addConstraint(Sketcher.Constraint("Coincident", 17, 2, 12, 1))
sketch6.addConstraint(Sketcher.Constraint("Coincident", 18, 2, 19, 1))
sketch6.addConstraint(Sketcher.Constraint("Coincident", 19, 2, 20, 1))
sketch6.addConstraint(Sketcher.Constraint("Coincident", 20, 2, 21, 1))
sketch6.addConstraint(Sketcher.Constraint("Coincident", 21, 2, 22, 1))
sketch6.addConstraint(Sketcher.Constraint("Coincident", 22, 2, 23, 1))
sketch6.addConstraint(Sketcher.Constraint("Coincident", 23, 2, 18, 1))
sketch6.addConstraint(Sketcher.Constraint("Vertical", 0))
sketch6.addConstraint(Sketcher.Constraint("Horizontal", 1))
sketch6.addConstraint(Sketcher.Constraint("Vertical", 2))
sketch6.addConstraint(Sketcher.Constraint("Horizontal", 3))
sketch6.addConstraint(Sketcher.Constraint("Vertical", 4))
sketch6.addConstraint(Sketcher.Constraint("Horizontal", 5))
sketch6.addConstraint(Sketcher.Constraint("Horizontal", 6))
sketch6.addConstraint(Sketcher.Constraint("Vertical", 7))
sketch6.addConstraint(Sketcher.Constraint("Horizontal", 8))
sketch6.addConstraint(Sketcher.Constraint("Vertical", 9))
sketch6.addConstraint(Sketcher.Constraint("Horizontal", 10))
sketch6.addConstraint(Sketcher.Constraint("Vertical", 11))
sketch6.addConstraint(Sketcher.Constraint("Vertical", 12))
sketch6.addConstraint(Sketcher.Constraint("Horizontal", 13))
sketch6.addConstraint(Sketcher.Constraint("Vertical", 14))
sketch6.addConstraint(Sketcher.Constraint("Horizontal", 15))
sketch6.addConstraint(Sketcher.Constraint("Vertical", 16))
sketch6.addConstraint(Sketcher.Constraint("Horizontal", 17))
sketch6.addConstraint(Sketcher.Constraint("Horizontal", 18))
sketch6.addConstraint(Sketcher.Constraint("Vertical", 19))
sketch6.addConstraint(Sketcher.Constraint("Horizontal", 20))
sketch6.addConstraint(Sketcher.Constraint("Vertical", 21))
sketch6.addConstraint(Sketcher.Constraint("Horizontal", 22))
sketch6.addConstraint(Sketcher.Constraint("Vertical", 23))
sketch6.addConstraint(Sketcher.Constraint("PointOnObject", 0, 2, -2))
sketch6.addConstraint(Sketcher.Constraint("PointOnObject", 22, 2, -2))
sketch6.addConstraint(Sketcher.Constraint("Horizontal", 5, 2, 6, 2))
sketch6.addConstraint(Sketcher.Constraint("Horizontal", 3, 2, 7, 2))
sketch6.addConstraint(Sketcher.Constraint("Horizontal", 1, 2, 9, 2))
sketch6.addConstraint(Sketcher.Constraint("Horizontal", 17, 2, 18, 2))
sketch6.addConstraint(Sketcher.Constraint("Horizontal", 15, 2, 19, 2))
sketch6.addConstraint(Sketcher.Constraint("Horizontal", 13, 2, 21, 2))
sketch6.addConstraint(Sketcher.Constraint("Vertical", 11, 2, 12, 2))
sketch6.addConstraint(Sketcher.Constraint("Vertical", 9, 2, 13, 2))
sketch6.addConstraint(Sketcher.Constraint("Vertical", 7, 2, 15, 2))
sketch6.addConstraint(Sketcher.Constraint("Vertical", 4, 2, 18, 2))
sketch6.addConstraint(Sketcher.Constraint("Vertical", 2, 2, 20, 2))
sketch6.addConstraint(Sketcher.Constraint("Equal", 5, 6))
sketch6.addConstraint(Sketcher.Constraint("Equal", 3, 8))
sketch6.addConstraint(Sketcher.Constraint("Equal", 22, 0))
sketch6.addConstraint(Sketcher.Constraint("Equal", 18, 2))
sketch6.addConstraint(Sketcher.Constraint("Equal", 11, 12))
sketch6.addConstraint(Sketcher.Constraint("Equal", 9, 14))
sketch6.addConstraint(Sketcher.Constraint("DistanceX", 1, 1, 1, 2, Q("2 in")))
sketch6.addConstraint(Sketcher.Constraint("DistanceY", 0, 2, -1, 1, Q("12 in")))
sketch6.addConstraint(Sketcher.Constraint("DistanceX", -1, 1, 8, 2, Q("60 in")))
sketch6.addConstraint(Sketcher.Constraint("DistanceY", 14, 2, -1, 1, Q("4 in")))
sketch6.addConstraint(Sketcher.Constraint("DistanceX", 3, 2, 3, 1, Q("1.75 in")))
pad6 = doc.addObject("PartDesign::Pad", "Pad005")
body.addObject(pad6)
pad6.Profile = sketch6
pad6.Length = Q("36 in")

sketch7 = doc.addObject("Sketcher::SketchObject", "Sketch006")
body.addObject(sketch7)
sketch7.AttachmentSupport = (doc.XZ_Plane, [""])
sketch7.MapMode = "FlatFace"
sketch7.AttachmentOffset = App.Placement(Vector(0, 0, 3.75 * 25.4), App.Rotation())
sketch7.addGeometry(Part.Circle(Vector(1409.7, -482.6, 0), Vector(0, 0, 1), 4.8), False)
sketch7.addGeometry(Part.Circle(Vector(1003.3, -482.6, 0), Vector(0, 0, 1), 4.8), False)
sketch7.addGeometry(Part.Circle(Vector(584.2, -482.6, 0), Vector(0, 0, 1), 4.8), False)
sketch7.addGeometry(Part.Circle(Vector(177.8, -482.6, 0), Vector(0, 0, 1), 4.8), False)
sketch7.addGeometry(Part.Circle(Vector(177.8, 482.6, 0), Vector(0, 0, 1), 4.8), False)
sketch7.addGeometry(Part.Circle(Vector(584.2, 482.6, 0), Vector(0, 0, 1), 4.8), False)
sketch7.addGeometry(Part.Circle(Vector(1003.3, 482.6, 0), Vector(0, 0, 1), 4.8), False)
sketch7.addGeometry(Part.Circle(Vector(1409.7, 482.6, 0), Vector(0, 0, 1), 4.8), False)
sketch7.addGeometry(Part.Circle(Vector(1054.1, -482.6, 0), Vector(0, 0, 1), 4.8), False)
sketch7.addGeometry(Part.Circle(Vector(1460.5, -482.6, 0), Vector(0, 0, 1), 4.8), False)
sketch7.addGeometry(Part.Circle(Vector(1460.5, 482.6, 0), Vector(0, 0, 1), 4.8), False)
sketch7.addGeometry(Part.Circle(Vector(1054.1, 482.6, 0), Vector(0, 0, 1), 4.8), False)
sketch7.addConstraint(Sketcher.Constraint("Equal", 0, 1))
sketch7.addConstraint(Sketcher.Constraint("Equal", 1, 2))
sketch7.addConstraint(Sketcher.Constraint("Equal", 2, 3))
sketch7.addConstraint(Sketcher.Constraint("Equal", 3, 4))
sketch7.addConstraint(Sketcher.Constraint("Equal", 4, 5))
sketch7.addConstraint(Sketcher.Constraint("Equal", 5, 6))
sketch7.addConstraint(Sketcher.Constraint("Equal", 6, 7))
sketch7.addConstraint(Sketcher.Constraint("Equal", 7, 8))
sketch7.addConstraint(Sketcher.Constraint("Equal", 8, 9))
sketch7.addConstraint(Sketcher.Constraint("Equal", 9, 10))
sketch7.addConstraint(Sketcher.Constraint("Equal", 10, 11))
sketch7.addConstraint(Sketcher.Constraint("Symmetric", 3, 3, 4, 3, -1))
sketch7.addConstraint(Sketcher.Constraint("Symmetric", 2, 3, 5, 3, -1))
sketch7.addConstraint(Sketcher.Constraint("Symmetric", 1, 3, 6, 3, -1))
sketch7.addConstraint(Sketcher.Constraint("Symmetric", 0, 3, 7, 3, -1))
sketch7.addConstraint(Sketcher.Constraint("Symmetric", 9, 3, 10, 3, -1))
sketch7.addConstraint(Sketcher.Constraint("Symmetric", 8, 3, 11, 3, -1))
sketch7.addConstraint(Sketcher.Constraint("Horizontal", 0, 3, 1, 3))
sketch7.addConstraint(Sketcher.Constraint("Horizontal", 1, 3, 2, 3))
sketch7.addConstraint(Sketcher.Constraint("Horizontal", 2, 3, 3, 3))
sketch7.addConstraint(Sketcher.Constraint("Horizontal", 3, 3, 8, 3))
sketch7.addConstraint(Sketcher.Constraint("Horizontal", 8, 3, 9, 3))
sketch7.addConstraint(Sketcher.Constraint("Diameter", 0, Q("0.375 in")))
sketch7.addConstraint(Sketcher.Constraint("DistanceY", 0, 3, -1, 1, Q("19 in")))
sketch7.addConstraint(Sketcher.Constraint("DistanceX", -1, 1, 2, 3, Q("23 in")))
sketch7.addConstraint(Sketcher.Constraint("DistanceX", -1, 1, 3, 3, Q("7 in")))
sketch7.addConstraint(Sketcher.Constraint("DistanceX", 1, 3, 0, 3, Q("16 in")))
sketch7.addConstraint(Sketcher.Constraint("DistanceX", 1, 3, 8, 3, Q("2 in")))
sketch7.addConstraint(Sketcher.Constraint("DistanceX", 0, 3, 9, 3, Q("2 in")))
sketch7.addConstraint(Sketcher.Constraint("DistanceX", -1, 1, 0, 3, Q("55.5 in")))
pocket1 = doc.addObject("PartDesign::Pocket", "Pocket")
body.addObject(pocket1)
pocket1.Profile = sketch7
pocket1.Type = "ThroughAll"
pocket1.Reversed = True

sketch8 = doc.addObject("Sketcher::SketchObject", "Sketch007")
body.addObject(sketch8)
sketch8.AttachmentSupport = (doc.XY_Plane, [""])
sketch8.MapMode = "FlatFace"
sketch8.AttachmentOffset = App.Placement(Vector(0, 0, 20 * 25.4), App.Rotation())
sketch8.addGeometry(Part.LineSegment(Vector(152, -235, 0), Vector(152, -273, 0)), False)
sketch8.addGeometry(Part.LineSegment(Vector(152, -273, 0), Vector(203, -273, 0)), False)
sketch8.addGeometry(Part.LineSegment(Vector(203, -273, 0), Vector(203, -235, 0)), False)
sketch8.addGeometry(Part.LineSegment(Vector(203, -235, 0), Vector(152, -235, 0)), False)
sketch8.addGeometry(Part.LineSegment(Vector(559, -235, 0), Vector(559, -273, 0)), False)
sketch8.addGeometry(Part.LineSegment(Vector(559, -273, 0), Vector(610, -273, 0)), False)
sketch8.addGeometry(Part.LineSegment(Vector(610, -273, 0), Vector(610, -235, 0)), False)
sketch8.addGeometry(Part.LineSegment(Vector(610, -235, 0), Vector(559, -235, 0)), False)
sketch8.addConstraint(Sketcher.Constraint("Coincident", 0, 2, 1, 1))
sketch8.addConstraint(Sketcher.Constraint("Coincident", 1, 2, 2, 1))
sketch8.addConstraint(Sketcher.Constraint("Coincident", 2, 2, 3, 1))
sketch8.addConstraint(Sketcher.Constraint("Coincident", 3, 2, 0, 1))
sketch8.addConstraint(Sketcher.Constraint("Coincident", 4, 2, 5, 1))
sketch8.addConstraint(Sketcher.Constraint("Coincident", 5, 2, 6, 1))
sketch8.addConstraint(Sketcher.Constraint("Coincident", 6, 2, 7, 1))
sketch8.addConstraint(Sketcher.Constraint("Coincident", 7, 2, 4, 1))
sketch8.addConstraint(Sketcher.Constraint("Vertical", 0))
sketch8.addConstraint(Sketcher.Constraint("Horizontal", 1))
sketch8.addConstraint(Sketcher.Constraint("Vertical", 2))
sketch8.addConstraint(Sketcher.Constraint("Horizontal", 3))
sketch8.addConstraint(Sketcher.Constraint("Vertical", 4))
sketch8.addConstraint(Sketcher.Constraint("Horizontal", 5))
sketch8.addConstraint(Sketcher.Constraint("Vertical", 6))
sketch8.addConstraint(Sketcher.Constraint("Horizontal", 7))
sketch8.addConstraint(Sketcher.Constraint("Horizontal", 1, 2, 4, 2))
sketch8.addConstraint(Sketcher.Constraint("Horizontal", 3, 2, 6, 2))
sketch8.addConstraint(Sketcher.Constraint("Equal", 3, 5))
sketch8.addConstraint(Sketcher.Constraint("DistanceX", 1, 1, 1, 2, Q("2 in")))
sketch8.addConstraint(Sketcher.Constraint("DistanceY", 0, 2, 0, 1, Q("1.5 in")))
sketch8.addConstraint(Sketcher.Constraint("DistanceX", -1, 1, 0, 2, Q("6 in")))
sketch8.addConstraint(Sketcher.Constraint("DistanceX", -1, 1, 4, 2, Q("22 in")))
sketch8.addConstraint(Sketcher.Constraint("DistanceY", 0, 2, -1, 1, Q("10.75 in")))
pocket2 = doc.addObject("PartDesign::Pocket", "Pocket001")
body.addObject(pocket2)
pocket2.Profile = sketch8
pocket2.Type = "ThroughAll"

sketch9 = doc.addObject("Sketcher::SketchObject", "Sketch008")
body.addObject(sketch9)
sketch9.AttachmentSupport = (doc.XZ_Plane, [""])
sketch9.MapMode = "FlatFace"
sketch9.AttachmentOffset = App.Placement(Vector(0, 0, 11.75 * 25.4), App.Rotation())
sketch9.addGeometry(Part.Circle(Vector(736.6, 469.9, 0), Vector(0, 0, 1), 4), False)
sketch9.addGeometry(Part.Circle(Vector(772.6, 469.9, 0), Vector(0, 0, 1), 4), False)
sketch9.addConstraint(Sketcher.Constraint("Equal", 0, 1))
sketch9.addConstraint(Sketcher.Constraint("Horizontal", 0, 3, 1, 3))
sketch9.addConstraint(Sketcher.Constraint("DistanceX", -1, 1, 0, 3, Q("29 in")))
sketch9.addConstraint(Sketcher.Constraint("DistanceY", -1, 1, 0, 3, Q("18.5 in")))
sketch9.addConstraint(Sketcher.Constraint("Diameter", 0, 8.0))
sketch9.addConstraint(Sketcher.Constraint("DistanceX", -1, 1, 1, 3, 772.6))
pocket3 = doc.addObject("PartDesign::Pocket", "Pocket002")
body.addObject(pocket3)
pocket3.Profile = sketch9
pocket3.Type = "ThroughAll"
pocket3.Reversed = True

doc.recompute()
